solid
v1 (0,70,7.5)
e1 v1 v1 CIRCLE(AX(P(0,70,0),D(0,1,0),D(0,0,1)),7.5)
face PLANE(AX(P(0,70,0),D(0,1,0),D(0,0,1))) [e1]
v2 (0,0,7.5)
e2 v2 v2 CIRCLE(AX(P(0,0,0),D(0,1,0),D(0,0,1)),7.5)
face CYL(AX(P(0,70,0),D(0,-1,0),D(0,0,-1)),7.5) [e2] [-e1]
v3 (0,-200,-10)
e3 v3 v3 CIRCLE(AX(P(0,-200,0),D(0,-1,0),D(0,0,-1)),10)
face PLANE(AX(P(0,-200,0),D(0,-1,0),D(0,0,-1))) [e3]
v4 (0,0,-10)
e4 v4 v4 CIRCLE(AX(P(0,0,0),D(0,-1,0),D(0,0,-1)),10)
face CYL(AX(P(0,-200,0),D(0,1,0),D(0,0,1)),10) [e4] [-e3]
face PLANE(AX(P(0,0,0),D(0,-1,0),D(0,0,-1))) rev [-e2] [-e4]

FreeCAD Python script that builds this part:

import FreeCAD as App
import Part
import Sketcher
from FreeCAD import Vector

doc = App.newDocument("Part")
body = doc.addObject("PartDesign::Body", "Body")

# Sketch on XZ plane
sketch1 = body.newObject("Sketcher::SketchObject", "Sketch")
sketch1.AttachmentSupport = (doc.getObject("XZ_Plane"), [""])
sketch1.MapMode = "FlatFace"
sketch1.addGeometry(Part.Circle(Vector(0, 0, 0), Vector(0, 0, 1), 7.5), False)
sketch1.addConstraint([
    Sketcher.Constraint("Coincident", 0, 3, -1, 1),
    Sketcher.Constraint("Diameter", 0, 15.0),
])
pad1 = body.newObject("PartDesign::Pad", "Pad")
pad1.Profile = sketch1
pad1.Length = 70
pad1.Reversed = True

# Sketch on XZ plane
sketch2 = body.newObject("Sketcher::SketchObject", "Sketch001")
sketch2.AttachmentSupport = (doc.getObject("XZ_Plane"), [""])
sketch2.MapMode = "FlatFace"
sketch2.addGeometry(Part.Circle(Vector(0, 0, 0), Vector(0, 0, 1), 10), False)
sketch2.addConstraint([
    Sketcher.Constraint("Coincident", 0, 3, -1, 1),
    Sketcher.Constraint("Diameter", 0, 20.0),
])
pad2 = body.newObject("PartDesign::Pad", "Pad001")
pad2.Profile = sketch2
pad2.Length = 200

doc.recompute()
